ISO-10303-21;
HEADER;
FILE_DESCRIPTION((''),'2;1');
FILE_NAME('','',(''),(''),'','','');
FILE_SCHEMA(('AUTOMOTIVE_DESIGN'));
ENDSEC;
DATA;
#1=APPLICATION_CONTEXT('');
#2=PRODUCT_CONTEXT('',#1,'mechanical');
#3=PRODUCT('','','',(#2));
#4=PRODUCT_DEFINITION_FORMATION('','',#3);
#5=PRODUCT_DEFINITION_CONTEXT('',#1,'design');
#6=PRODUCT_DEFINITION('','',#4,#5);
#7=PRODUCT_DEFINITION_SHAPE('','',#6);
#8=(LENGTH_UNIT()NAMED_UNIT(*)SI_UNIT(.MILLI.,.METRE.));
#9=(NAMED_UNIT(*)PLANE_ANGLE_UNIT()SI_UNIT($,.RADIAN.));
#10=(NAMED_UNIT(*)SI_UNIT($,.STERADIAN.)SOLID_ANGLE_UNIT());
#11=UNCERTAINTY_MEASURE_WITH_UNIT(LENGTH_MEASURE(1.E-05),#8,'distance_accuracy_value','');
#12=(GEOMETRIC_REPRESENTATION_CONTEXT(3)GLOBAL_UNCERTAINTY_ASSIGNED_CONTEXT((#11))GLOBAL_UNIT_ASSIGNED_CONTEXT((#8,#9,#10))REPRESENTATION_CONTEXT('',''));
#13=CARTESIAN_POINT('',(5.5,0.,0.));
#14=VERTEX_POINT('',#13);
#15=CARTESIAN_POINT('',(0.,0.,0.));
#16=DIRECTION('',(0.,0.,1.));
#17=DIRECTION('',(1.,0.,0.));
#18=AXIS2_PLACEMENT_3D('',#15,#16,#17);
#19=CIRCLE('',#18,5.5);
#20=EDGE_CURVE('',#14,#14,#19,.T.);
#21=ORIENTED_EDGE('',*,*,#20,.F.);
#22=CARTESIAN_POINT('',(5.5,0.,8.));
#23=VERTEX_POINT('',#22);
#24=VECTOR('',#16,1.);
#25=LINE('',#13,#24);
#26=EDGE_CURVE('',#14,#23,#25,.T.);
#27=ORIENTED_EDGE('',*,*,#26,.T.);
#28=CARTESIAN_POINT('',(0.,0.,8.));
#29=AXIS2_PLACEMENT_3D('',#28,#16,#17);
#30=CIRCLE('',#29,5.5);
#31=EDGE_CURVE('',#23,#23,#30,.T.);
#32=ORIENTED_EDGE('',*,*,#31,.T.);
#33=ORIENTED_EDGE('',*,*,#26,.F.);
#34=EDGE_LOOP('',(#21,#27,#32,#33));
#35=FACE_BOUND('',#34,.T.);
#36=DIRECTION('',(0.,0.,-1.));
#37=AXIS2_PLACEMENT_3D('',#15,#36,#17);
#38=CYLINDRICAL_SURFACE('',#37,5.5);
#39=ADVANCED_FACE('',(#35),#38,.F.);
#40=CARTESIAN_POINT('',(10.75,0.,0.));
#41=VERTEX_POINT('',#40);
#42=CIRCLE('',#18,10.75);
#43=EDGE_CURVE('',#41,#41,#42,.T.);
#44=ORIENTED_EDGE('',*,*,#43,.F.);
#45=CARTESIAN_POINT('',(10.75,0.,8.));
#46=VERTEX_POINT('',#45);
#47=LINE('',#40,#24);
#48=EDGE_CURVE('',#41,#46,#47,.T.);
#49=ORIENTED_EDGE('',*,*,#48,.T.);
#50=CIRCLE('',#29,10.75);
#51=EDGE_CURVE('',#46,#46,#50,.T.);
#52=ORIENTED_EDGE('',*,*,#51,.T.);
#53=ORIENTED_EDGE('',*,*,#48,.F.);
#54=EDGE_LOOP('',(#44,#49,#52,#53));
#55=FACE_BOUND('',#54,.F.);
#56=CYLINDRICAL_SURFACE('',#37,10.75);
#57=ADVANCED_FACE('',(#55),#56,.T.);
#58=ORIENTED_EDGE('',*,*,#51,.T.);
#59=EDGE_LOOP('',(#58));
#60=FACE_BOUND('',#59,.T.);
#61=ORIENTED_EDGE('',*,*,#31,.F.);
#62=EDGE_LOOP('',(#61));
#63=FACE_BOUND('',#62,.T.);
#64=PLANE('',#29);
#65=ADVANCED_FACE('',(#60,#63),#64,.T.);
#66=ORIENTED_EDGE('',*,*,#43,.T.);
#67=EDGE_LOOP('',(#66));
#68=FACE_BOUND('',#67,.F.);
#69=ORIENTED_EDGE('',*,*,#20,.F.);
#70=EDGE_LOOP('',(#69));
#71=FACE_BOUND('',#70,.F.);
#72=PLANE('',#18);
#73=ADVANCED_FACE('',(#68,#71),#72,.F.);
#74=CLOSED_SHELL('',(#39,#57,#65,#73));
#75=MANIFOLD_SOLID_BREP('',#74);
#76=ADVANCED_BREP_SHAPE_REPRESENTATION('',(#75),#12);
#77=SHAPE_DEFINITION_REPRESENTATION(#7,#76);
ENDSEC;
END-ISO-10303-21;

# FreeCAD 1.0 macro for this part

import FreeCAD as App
import Part
import Sketcher

doc = App.newDocument("Part")
body = doc.addObject("PartDesign::Body", "Body")

sketch1 = body.newObject("Sketcher::SketchObject", "Sketch")
sketch1.AttachmentSupport = (doc.getObject("XY_Plane"), [""])
sketch1.MapMode = "FlatFace"
sketch1.addGeometry(Part.Circle(App.Vector(0, 0, 0), App.Vector(0, 0, 1), 11), False)
sketch1.addGeometry(Part.Circle(App.Vector(0, 0, 0), App.Vector(0, 0, 1), 6), False)
sketch1.addConstraint(Sketcher.Constraint("Coincident", 0, 3, -1, 1))
sketch1.addConstraint(Sketcher.Constraint("Coincident", 1, 3, -1, 1))
sketch1.addConstraint(Sketcher.Constraint("Diameter", 1, 11.0))
sketch1.addConstraint(Sketcher.Constraint("Diameter", 0, 21.5))
pad1 = body.newObject("PartDesign::Pad", "Pad")
pad1.Profile = sketch1
pad1.Length = 8

doc.recompute()
